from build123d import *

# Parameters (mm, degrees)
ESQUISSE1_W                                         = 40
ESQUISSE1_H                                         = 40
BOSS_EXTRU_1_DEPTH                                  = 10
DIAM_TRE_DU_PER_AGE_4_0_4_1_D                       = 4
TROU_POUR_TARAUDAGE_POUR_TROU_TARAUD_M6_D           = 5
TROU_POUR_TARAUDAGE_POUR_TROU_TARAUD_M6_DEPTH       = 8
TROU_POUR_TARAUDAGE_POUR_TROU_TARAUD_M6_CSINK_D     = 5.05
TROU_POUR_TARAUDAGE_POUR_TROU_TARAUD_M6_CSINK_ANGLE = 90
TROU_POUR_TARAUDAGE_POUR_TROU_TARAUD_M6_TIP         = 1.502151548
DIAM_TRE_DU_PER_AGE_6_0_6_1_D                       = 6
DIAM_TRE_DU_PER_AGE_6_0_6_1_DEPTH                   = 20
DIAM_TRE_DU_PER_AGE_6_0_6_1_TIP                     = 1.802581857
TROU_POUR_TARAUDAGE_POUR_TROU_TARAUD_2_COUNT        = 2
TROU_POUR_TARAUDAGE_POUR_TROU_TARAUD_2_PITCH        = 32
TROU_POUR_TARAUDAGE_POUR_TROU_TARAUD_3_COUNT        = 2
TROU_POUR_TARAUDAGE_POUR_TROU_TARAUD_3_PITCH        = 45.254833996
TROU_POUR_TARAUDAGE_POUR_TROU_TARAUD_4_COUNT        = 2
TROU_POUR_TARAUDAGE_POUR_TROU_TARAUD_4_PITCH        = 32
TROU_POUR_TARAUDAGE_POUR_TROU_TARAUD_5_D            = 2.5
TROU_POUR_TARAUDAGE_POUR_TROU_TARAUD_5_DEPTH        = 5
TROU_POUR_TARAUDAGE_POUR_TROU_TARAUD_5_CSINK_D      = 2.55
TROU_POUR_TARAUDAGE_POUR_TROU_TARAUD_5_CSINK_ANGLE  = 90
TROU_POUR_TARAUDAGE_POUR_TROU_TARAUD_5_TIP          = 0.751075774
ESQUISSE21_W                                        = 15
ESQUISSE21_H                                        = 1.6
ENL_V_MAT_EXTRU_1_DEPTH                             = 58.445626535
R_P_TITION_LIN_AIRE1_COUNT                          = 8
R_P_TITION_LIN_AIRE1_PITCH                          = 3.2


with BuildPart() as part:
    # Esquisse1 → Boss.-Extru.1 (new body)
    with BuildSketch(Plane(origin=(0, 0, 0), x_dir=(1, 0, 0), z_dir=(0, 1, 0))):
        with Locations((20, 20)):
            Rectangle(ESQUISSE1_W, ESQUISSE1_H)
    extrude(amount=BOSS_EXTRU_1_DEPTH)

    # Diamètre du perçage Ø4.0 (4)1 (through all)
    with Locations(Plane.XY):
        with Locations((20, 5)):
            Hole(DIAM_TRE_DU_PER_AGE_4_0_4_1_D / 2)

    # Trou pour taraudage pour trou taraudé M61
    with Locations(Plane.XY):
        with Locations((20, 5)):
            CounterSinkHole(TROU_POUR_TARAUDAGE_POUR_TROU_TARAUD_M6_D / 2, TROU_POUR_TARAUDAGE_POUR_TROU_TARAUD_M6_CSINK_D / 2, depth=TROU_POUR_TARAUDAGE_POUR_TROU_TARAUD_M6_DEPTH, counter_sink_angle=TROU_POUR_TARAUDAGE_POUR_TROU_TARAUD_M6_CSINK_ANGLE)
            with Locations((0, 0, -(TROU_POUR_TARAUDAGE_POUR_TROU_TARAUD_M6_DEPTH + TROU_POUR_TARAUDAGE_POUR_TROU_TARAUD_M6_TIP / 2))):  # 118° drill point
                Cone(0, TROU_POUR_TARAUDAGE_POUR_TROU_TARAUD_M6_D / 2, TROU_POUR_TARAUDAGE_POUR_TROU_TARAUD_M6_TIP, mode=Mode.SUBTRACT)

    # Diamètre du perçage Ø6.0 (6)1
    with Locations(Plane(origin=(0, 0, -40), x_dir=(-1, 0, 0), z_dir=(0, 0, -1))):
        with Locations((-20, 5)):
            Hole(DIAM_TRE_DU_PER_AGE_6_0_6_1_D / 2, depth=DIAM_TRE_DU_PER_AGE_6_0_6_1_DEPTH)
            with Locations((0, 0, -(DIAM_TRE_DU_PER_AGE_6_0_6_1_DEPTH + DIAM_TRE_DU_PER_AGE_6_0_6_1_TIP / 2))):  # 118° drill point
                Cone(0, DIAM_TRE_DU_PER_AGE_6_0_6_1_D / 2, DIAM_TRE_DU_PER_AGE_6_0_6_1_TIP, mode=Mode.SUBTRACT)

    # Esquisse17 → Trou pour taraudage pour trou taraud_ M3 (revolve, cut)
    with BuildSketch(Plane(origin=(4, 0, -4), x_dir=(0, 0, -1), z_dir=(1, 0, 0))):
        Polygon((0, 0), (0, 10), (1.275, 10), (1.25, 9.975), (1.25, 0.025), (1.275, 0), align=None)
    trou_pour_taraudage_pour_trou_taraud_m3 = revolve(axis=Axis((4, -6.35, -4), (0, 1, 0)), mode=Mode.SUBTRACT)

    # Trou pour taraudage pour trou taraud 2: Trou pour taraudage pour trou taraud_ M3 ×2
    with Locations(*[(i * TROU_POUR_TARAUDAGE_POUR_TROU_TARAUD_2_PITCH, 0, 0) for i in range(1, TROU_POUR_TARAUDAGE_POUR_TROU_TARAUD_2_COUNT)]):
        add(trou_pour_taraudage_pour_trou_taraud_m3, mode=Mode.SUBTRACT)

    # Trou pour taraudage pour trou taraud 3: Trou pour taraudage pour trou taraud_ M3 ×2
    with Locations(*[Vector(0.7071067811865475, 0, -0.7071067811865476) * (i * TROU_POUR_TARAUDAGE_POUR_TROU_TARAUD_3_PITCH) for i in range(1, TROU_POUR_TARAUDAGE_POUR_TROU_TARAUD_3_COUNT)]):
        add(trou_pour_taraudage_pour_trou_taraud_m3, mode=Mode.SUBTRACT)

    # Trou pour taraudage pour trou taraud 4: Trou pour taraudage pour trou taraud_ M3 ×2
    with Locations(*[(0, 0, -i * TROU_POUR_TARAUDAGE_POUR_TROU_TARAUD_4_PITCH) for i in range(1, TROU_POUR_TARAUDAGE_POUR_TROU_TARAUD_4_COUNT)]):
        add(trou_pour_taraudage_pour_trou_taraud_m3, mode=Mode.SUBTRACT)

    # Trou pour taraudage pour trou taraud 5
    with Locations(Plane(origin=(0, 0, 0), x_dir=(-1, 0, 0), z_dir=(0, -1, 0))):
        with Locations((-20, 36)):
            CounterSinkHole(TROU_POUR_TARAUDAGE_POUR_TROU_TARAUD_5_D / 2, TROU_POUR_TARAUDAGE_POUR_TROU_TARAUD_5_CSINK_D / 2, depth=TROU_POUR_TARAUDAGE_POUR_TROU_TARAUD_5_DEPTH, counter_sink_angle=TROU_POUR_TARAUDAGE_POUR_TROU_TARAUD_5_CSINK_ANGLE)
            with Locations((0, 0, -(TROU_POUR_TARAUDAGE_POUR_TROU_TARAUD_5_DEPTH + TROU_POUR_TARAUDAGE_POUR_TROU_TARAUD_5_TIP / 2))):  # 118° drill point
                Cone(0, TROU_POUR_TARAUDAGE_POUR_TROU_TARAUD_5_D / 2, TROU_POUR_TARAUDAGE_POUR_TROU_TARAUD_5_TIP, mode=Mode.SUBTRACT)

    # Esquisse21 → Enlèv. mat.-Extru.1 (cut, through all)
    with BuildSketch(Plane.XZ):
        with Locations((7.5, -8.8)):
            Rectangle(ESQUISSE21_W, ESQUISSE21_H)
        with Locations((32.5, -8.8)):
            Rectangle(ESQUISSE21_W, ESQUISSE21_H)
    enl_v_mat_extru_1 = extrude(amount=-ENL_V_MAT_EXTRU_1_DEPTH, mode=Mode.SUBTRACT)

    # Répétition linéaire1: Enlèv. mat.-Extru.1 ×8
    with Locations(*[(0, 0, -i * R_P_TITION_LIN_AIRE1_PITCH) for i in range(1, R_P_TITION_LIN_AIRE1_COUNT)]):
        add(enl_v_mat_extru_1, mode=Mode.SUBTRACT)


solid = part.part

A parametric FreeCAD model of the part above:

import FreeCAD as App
import Part
import Sketcher
from FreeCAD import Vector

doc = App.newDocument("Part")
body = doc.addObject("PartDesign::Body", "Body")

# Sketch on XZ plane
sketch1 = doc.addObject("Sketcher::SketchObject", "Sketch")
body.addObject(sketch1)
sketch1.AttachmentSupport = (doc.XZ_Plane, [""])
sketch1.MapMode = "FlatFace"
sketch1.addGeometry([
    Part.LineSegment(Vector(0, -40, 0), Vector(0, 0, 0)),
    Part.LineSegment(Vector(0, 0, 0), Vector(40, 0, 0)),
    Part.LineSegment(Vector(40, 0, 0), Vector(40, -40, 0)),
    Part.LineSegment(Vector(40, -40, 0), Vector(0, -40, 0)),
], False)
sketch1.addConstraint([
    Sketcher.Constraint("Coincident", 0, 2, 1, 1),
    Sketcher.Constraint("Coincident", 1, 2, 2, 1),
    Sketcher.Constraint("Coincident", 2, 2, 3, 1),
    Sketcher.Constraint("Coincident", 3, 2, 0, 1),
    Sketcher.Constraint("Vertical", 0),
    Sketcher.Constraint("Horizontal", 1),
    Sketcher.Constraint("Vertical", 2),
    Sketcher.Constraint("Horizontal", 3),
    Sketcher.Constraint("Coincident", 0, 2, -1, 1),
    Sketcher.Constraint("Equal", 3, 0),
    Sketcher.Constraint("DistanceX", 1, 1, 1, 2, 40.0),
])
pad1 = doc.addObject("PartDesign::Pad", "Pad")
body.addObject(pad1)
pad1.Profile = sketch1
pad1.Length = 10
pad1.Reversed = True

# Sketch on XY plane
sketch2 = doc.addObject("Sketcher::SketchObject", "Sketch001")
body.addObject(sketch2)
sketch2.AttachmentSupport = (doc.XY_Plane, [""])
sketch2.MapMode = "FlatFace"
sketch2.addGeometry(Part.Circle(Vector(20, 5, 0), Vector(0, 0, 1), 2), False)
sketch2.addConstraint([
    Sketcher.Constraint("Diameter", 0, 4.0),
    Sketcher.Constraint("DistanceX", -1, 1, 0, 3, 20.0),
    Sketcher.Constraint("DistanceY", -1, 1, 0, 3, 5.0),
])
doc.recompute()
hole = doc.addObject("PartDesign::Hole", "Hole")
body.addObject(hole)
hole.Profile = sketch2
hole.ThreadType = "None"
hole.Diameter = 4
hole.DepthType = "ThroughAll"

# Sketch on XY plane
sketch3 = doc.addObject("Sketcher::SketchObject", "Sketch002")
body.addObject(sketch3)
sketch3.AttachmentSupport = (doc.XY_Plane, [""])
sketch3.MapMode = "FlatFace"
sketch3.addGeometry(Part.Circle(Vector(20, 5, 0), Vector(0, 0, 1), 2.5), False)
sketch3.addConstraint([
    Sketcher.Constraint("Diameter", 0, 5.0),
    Sketcher.Constraint("DistanceX", -1, 1, 0, 3, 20.0),
    Sketcher.Constraint("DistanceY", -1, 1, 0, 3, 5.0),
])
doc.recompute()
hole2 = doc.addObject("PartDesign::Hole", "Hole001")
body.addObject(hole2)
hole2.Profile = sketch3
hole2.ThreadType = "None"
hole2.Diameter = 5
hole2.DepthType = "Dimension"
hole2.Depth = 8
hole2.DrillPoint = "Angled"
hole2.DrillPointAngle = 118
hole2.HoleCutType = "Countersink"
hole2.HoleCutDiameter = 5.05
hole2.HoleCutCountersinkAngle = 90

# Sketch on XY plane
sketch4 = doc.addObject("Sketcher::SketchObject", "Sketch003")
body.addObject(sketch4)
sketch4.AttachmentSupport = (doc.XY_Plane, [""])
sketch4.MapMode = "FlatFace"
sketch4.AttachmentOffset = App.Placement(Vector(0, 0, -40), App.Rotation())
sketch4.addGeometry(Part.Circle(Vector(20, 5, 0), Vector(0, 0, 1), 3), False)
sketch4.addConstraint([
    Sketcher.Constraint("Diameter", 0, 6.0),
    Sketcher.Constraint("DistanceX", -1, 1, 0, 3, 20.0),
    Sketcher.Constraint("DistanceY", -1, 1, 0, 3, 5.0),
])
doc.recompute()
hole3 = doc.addObject("PartDesign::Hole", "Hole002")
body.addObject(hole3)
hole3.Profile = sketch4
hole3.ThreadType = "None"
hole3.Diameter = 6
hole3.DepthType = "Dimension"
hole3.Depth = 20
hole3.DrillPoint = "Angled"
hole3.DrillPointAngle = 118
hole3.Reversed = True

# Sketch on YZ plane
sketch5 = doc.addObject("Sketcher::SketchObject", "Sketch004")
body.addObject(sketch5)
sketch5.AttachmentSupport = (doc.YZ_Plane, [""])
sketch5.MapMode = "FlatFace"
sketch5.AttachmentOffset = App.Placement(Vector(0, 0, 4), App.Rotation())
sketch5.addGeometry([
    Part.LineSegment(Vector(10, -4, 0), Vector(0, -4, 0)),  # 0
    Part.LineSegment(Vector(0, -4, 0), Vector(0, -5.275, 0)),  # 1
    Part.LineSegment(Vector(0, -5.275, 0), Vector(0.025, -5.25, 0)),  # 2
    Part.LineSegment(Vector(0.025, -5.25, 0), Vector(9.975, -5.25, 0)),  # 3
    Part.LineSegment(Vector(9.975, -5.25, 0), Vector(10, -5.275, 0)),  # 4
    Part.LineSegment(Vector(10, -5.275, 0), Vector(10, -4, 0)),  # 5
], False)
sketch5.addGeometry(Part.LineSegment(Vector(0, -4, 0), Vector(10, -4, 0)), True)  # axis
sketch5.addConstraint([
    Sketcher.Constraint("Coincident", 0, 2, 1, 1),
    Sketcher.Constraint("Coincident", 1, 2, 2, 1),
    Sketcher.Constraint("Coincident", 2, 2, 3, 1),
    Sketcher.Constraint("Coincident", 3, 2, 4, 1),
    Sketcher.Constraint("Coincident", 4, 2, 5, 1),
    Sketcher.Constraint("Coincident", 5, 2, 0, 1),
    Sketcher.Constraint("Horizontal", 0),
    Sketcher.Constraint("Vertical", 1),
    Sketcher.Constraint("Horizontal", 3),
    Sketcher.Constraint("Vertical", 5),
    Sketcher.Constraint("Horizontal", 6),
    Sketcher.Constraint("Coincident", 6, 1, 0, 2),
    Sketcher.Constraint("PointOnObject", 0, 2, -2),
    Sketcher.Constraint("Perpendicular", 2, 4),
    Sketcher.Constraint("Horizontal", 1, 2, 4, 2),
    Sketcher.Constraint("Vertical", 4, 2, 6, 2),
    Sketcher.Constraint("Equal", 2, 4),
    Sketcher.Constraint("DistanceX", 0, 2, 0, 1, 10.0),
    Sketcher.Constraint("DistanceY", 0, 2, -1, 1, 4.0),
    Sketcher.Constraint("DistanceX", 3, 1, 3, 2, 9.95),
    Sketcher.Constraint("DistanceY", 1, 2, 1, 1, 1.275),
])
groove = doc.addObject("PartDesign::Groove", "Groove")
body.addObject(groove)
groove.Profile = sketch5
groove.ReferenceAxis = (sketch5, ["Axis0"])
groove.Angle = 360
doc.recompute()

linearpattern = doc.addObject("PartDesign::LinearPattern", "LinearPattern")
body.addObject(linearpattern)
linearpattern.Originals = [groove]
linearpattern.Direction = (doc.X_Axis, [""])
linearpattern.Mode = "offset"
linearpattern.Offset = 32
linearpattern.Occurrences = 2
body.Tip = linearpattern
doc.recompute()

datumline = doc.addObject("PartDesign::Line", "DatumLine")
body.addObject(datumline)
datumline.Placement = App.Placement(Vector(0, 0, 0), App.Rotation(Vector(0, 0, 1), Vector(0.707106781, 0, -0.707106781)))
linearpattern2 = doc.addObject("PartDesign::LinearPattern", "LinearPattern001")
body.addObject(linearpattern2)
linearpattern2.Originals = [groove]
linearpattern2.Direction = (datumline, [""])
linearpattern2.Mode = "offset"
linearpattern2.Offset = 45.254834
linearpattern2.Occurrences = 2
body.Tip = linearpattern2
doc.recompute()

linearpattern3 = doc.addObject("PartDesign::LinearPattern", "LinearPattern002")
body.addObject(linearpattern3)
linearpattern3.Originals = [groove]
linearpattern3.Direction = (doc.Z_Axis, [""])
linearpattern3.Mode = "offset"
linearpattern3.Offset = 32
linearpattern3.Occurrences = 2
linearpattern3.Reversed = True
body.Tip = linearpattern3

# Sketch on XZ plane
sketch6 = doc.addObject("Sketcher::SketchObject", "Sketch005")
body.addObject(sketch6)
sketch6.AttachmentSupport = (doc.XZ_Plane, [""])
sketch6.MapMode = "FlatFace"
sketch6.addGeometry(Part.Circle(Vector(20, -36, 0), Vector(0, 0, 1), 1.2), False)
sketch6.addConstraint([
    Sketcher.Constraint("Diameter", 0, 2.5),
    Sketcher.Constraint("DistanceX", -1, 1, 0, 3, 20.0),
    Sketcher.Constraint("DistanceY", 0, 3, -1, 1, 36.0),
])
doc.recompute()
hole4 = doc.addObject("PartDesign::Hole", "Hole003")
body.addObject(hole4)
hole4.Profile = sketch6
hole4.ThreadType = "None"
hole4.Diameter = 2.5
hole4.DepthType = "Dimension"
hole4.Depth = 5
hole4.DrillPoint = "Angled"
hole4.DrillPointAngle = 118
hole4.HoleCutType = "Countersink"
hole4.HoleCutDiameter = 2.55
hole4.HoleCutCountersinkAngle = 90

# Sketch on XZ plane
sketch7 = doc.addObject("Sketcher::SketchObject", "Sketch006")
body.addObject(sketch7)
sketch7.AttachmentSupport = (doc.XZ_Plane, [""])
sketch7.MapMode = "FlatFace"
sketch7.addGeometry([
    Part.LineSegment(Vector(0, -8, 0), Vector(0, -9.6, 0)),  # 0
    Part.LineSegment(Vector(0, -9.6, 0), Vector(15, -9.6, 0)),  # 1
    Part.LineSegment(Vector(15, -9.6, 0), Vector(15, -8, 0)),  # 2
    Part.LineSegment(Vector(15, -8, 0), Vector(0, -8, 0)),  # 3
    Part.LineSegment(Vector(25, -8, 0), Vector(25, -9.6, 0)),  # 4
    Part.LineSegment(Vector(25, -9.6, 0), Vector(40, -9.6, 0)),  # 5
    Part.LineSegment(Vector(40, -9.6, 0), Vector(40, -8, 0)),  # 6
    Part.LineSegment(Vector(40, -8, 0), Vector(25, -8, 0)),  # 7
], False)
sketch7.addConstraint([
    Sketcher.Constraint("Coincident", 0, 2, 1, 1),
    Sketcher.Constraint("Coincident", 1, 2, 2, 1),
    Sketcher.Constraint("Coincident", 2, 2, 3, 1),
    Sketcher.Constraint("Coincident", 3, 2, 0, 1),
    Sketcher.Constraint("Coincident", 4, 2, 5, 1),
    Sketcher.Constraint("Coincident", 5, 2, 6, 1),
    Sketcher.Constraint("Coincident", 6, 2, 7, 1),
    Sketcher.Constraint("Coincident", 7, 2, 4, 1),
    Sketcher.Constraint("Vertical", 0),
    Sketcher.Constraint("Horizontal", 1),
    Sketcher.Constraint("Vertical", 2),
    Sketcher.Constraint("Horizontal", 3),
    Sketcher.Constraint("Vertical", 4),
    Sketcher.Constraint("Horizontal", 5),
    Sketcher.Constraint("Vertical", 6),
    Sketcher.Constraint("Horizontal", 7),
    Sketcher.Constraint("PointOnObject", 0, 2, -2),
    Sketcher.Constraint("Horizontal", 1, 2, 4, 2),
    Sketcher.Constraint("Horizontal", 3, 2, 6, 2),
    Sketcher.Constraint("Equal", 3, 5),
    Sketcher.Constraint("DistanceX", 1, 1, 1, 2, 15.0),
    Sketcher.Constraint("DistanceY", 0, 2, 0, 1, 1.6),
    Sketcher.Constraint("DistanceY", 2, 2, -1, 1, 8.0),
    Sketcher.Constraint("DistanceX", -1, 1, 4, 2, 25.0),
])
pocket1 = doc.addObject("PartDesign::Pocket", "Pocket")
body.addObject(pocket1)
pocket1.Profile = sketch7
pocket1.Type = "ThroughAll"
doc.recompute()

linearpattern4 = doc.addObject("PartDesign::LinearPattern", "LinearPattern003")
body.addObject(linearpattern4)
linearpattern4.Originals = [pocket1]
linearpattern4.Direction = (doc.Z_Axis, [""])
linearpattern4.Mode = "offset"
linearpattern4.Offset = 3.2
linearpattern4.Occurrences = 8
linearpattern4.Reversed = True
body.Tip = linearpattern4

doc.recompute()
